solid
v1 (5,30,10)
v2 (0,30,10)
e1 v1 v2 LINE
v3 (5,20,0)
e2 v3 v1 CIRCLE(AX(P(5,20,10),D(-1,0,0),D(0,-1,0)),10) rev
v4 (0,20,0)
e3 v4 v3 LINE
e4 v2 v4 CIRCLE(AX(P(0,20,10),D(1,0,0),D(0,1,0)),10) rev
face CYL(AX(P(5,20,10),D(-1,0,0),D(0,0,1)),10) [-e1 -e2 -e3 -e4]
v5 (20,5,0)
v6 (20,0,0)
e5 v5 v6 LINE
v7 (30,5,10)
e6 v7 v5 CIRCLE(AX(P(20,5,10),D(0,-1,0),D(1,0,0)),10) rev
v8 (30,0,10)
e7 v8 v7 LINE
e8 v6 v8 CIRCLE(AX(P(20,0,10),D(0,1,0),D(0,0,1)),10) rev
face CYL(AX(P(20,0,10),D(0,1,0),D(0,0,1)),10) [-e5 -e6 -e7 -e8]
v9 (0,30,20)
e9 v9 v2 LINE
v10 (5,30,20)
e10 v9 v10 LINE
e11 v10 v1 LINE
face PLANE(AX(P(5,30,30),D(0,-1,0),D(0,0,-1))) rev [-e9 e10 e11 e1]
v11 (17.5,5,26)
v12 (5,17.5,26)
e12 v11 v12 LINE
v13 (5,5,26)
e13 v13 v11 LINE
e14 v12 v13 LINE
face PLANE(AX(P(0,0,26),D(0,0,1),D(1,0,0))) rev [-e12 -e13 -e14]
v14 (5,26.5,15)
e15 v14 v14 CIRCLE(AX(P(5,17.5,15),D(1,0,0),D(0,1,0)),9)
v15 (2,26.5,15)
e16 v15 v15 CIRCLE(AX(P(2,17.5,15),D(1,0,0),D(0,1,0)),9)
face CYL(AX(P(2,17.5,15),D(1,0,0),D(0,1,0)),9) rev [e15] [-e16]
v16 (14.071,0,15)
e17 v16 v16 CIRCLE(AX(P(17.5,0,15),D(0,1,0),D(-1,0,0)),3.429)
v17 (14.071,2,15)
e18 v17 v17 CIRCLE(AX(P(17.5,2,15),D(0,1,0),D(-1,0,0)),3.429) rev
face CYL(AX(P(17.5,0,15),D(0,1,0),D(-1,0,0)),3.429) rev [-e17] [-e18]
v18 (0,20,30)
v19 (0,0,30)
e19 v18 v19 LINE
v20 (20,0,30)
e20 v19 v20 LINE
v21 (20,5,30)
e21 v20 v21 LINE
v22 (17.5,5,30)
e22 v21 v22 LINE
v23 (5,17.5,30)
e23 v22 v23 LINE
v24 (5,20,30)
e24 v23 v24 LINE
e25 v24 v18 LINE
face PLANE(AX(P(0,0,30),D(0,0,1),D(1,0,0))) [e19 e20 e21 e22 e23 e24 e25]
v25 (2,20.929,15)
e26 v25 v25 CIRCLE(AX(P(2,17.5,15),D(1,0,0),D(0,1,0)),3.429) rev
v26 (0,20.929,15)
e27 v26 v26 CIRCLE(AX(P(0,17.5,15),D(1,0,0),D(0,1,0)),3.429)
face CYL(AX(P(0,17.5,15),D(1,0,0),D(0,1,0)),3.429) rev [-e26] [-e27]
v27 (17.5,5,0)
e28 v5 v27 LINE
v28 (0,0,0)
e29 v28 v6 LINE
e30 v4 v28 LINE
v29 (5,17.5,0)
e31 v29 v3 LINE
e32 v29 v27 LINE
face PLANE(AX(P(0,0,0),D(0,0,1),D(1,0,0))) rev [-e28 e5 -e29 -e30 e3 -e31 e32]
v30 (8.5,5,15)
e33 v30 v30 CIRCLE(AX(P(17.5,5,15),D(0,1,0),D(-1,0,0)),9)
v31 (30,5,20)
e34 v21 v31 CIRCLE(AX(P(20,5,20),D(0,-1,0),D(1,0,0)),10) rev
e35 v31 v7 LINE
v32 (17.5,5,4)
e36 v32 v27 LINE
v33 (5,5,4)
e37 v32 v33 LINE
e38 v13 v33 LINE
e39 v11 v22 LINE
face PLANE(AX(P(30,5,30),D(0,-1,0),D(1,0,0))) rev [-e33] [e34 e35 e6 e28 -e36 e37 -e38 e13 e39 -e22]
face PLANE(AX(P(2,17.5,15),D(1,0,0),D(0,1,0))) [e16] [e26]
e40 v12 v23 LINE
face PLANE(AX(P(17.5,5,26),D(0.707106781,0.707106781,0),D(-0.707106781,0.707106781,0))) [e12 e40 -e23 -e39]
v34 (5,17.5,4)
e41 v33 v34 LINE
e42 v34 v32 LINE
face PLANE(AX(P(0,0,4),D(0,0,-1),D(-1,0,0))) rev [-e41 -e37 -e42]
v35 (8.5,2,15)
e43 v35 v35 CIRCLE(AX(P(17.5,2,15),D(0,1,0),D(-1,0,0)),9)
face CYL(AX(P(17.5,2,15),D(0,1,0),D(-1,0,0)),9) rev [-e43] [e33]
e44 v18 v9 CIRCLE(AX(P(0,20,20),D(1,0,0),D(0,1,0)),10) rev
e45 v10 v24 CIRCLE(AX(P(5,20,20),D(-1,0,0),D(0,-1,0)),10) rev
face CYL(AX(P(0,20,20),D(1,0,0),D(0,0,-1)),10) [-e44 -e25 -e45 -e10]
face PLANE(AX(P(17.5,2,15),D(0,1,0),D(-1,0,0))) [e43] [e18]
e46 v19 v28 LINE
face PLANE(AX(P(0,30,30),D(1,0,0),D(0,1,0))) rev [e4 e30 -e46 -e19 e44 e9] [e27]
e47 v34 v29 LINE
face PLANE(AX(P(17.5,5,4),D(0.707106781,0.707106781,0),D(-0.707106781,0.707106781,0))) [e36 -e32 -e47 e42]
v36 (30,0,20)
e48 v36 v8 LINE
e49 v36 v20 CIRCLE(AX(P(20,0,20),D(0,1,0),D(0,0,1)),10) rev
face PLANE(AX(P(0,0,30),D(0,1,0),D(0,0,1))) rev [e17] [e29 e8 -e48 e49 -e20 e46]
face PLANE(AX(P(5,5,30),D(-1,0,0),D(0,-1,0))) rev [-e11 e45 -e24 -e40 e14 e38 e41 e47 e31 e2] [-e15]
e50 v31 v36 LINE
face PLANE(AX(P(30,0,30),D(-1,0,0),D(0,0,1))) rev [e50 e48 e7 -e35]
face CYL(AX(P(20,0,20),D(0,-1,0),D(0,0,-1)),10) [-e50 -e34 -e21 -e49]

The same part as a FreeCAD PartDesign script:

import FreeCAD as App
import Part
import Sketcher
Q = App.Units.Quantity


def edges_at(feature, points):
    """Names of the edges that pass closest to the given points."""
    edges = feature.Shape.Edges
    near = lambda p: min(range(len(edges)), key=lambda i: edges[i].distToShape(Part.Vertex(*p))[0])
    return sorted({f"Edge{near(p) + 1}" for p in points})


def add_polygon(sketch, points):
    """Adds a closed chain of lines whose ends are joined by coincident constraints."""
    first, n = sketch.GeometryCount, len(points)
    for a, b in zip(points, points[1:] + points[:1]):
        sketch.addGeometry(Part.LineSegment(App.Vector(*a, 0), App.Vector(*b, 0)), False)
    for i in range(n):
        sketch.addConstraint(Sketcher.Constraint("Coincident", first + i, 2, first + (i + 1) % n, 1))

doc = App.newDocument("Part")
params = doc.addObject("Spreadsheet::Sheet", "Params")
for row, (alias, value) in enumerate([
    ("sketch1_width", "30 mm"),
    ("sketch1_width2", "25 mm"),
    ("pad1_length", "30 mm"),
    ("sketch4_diameter", "18 mm"),
    ("pocket3_length", "3 mm"),
    ("sketch5_diameter", "18 mm"),
    ("pocket4_length", "3 mm"),
    ("sketch6_width", "12.5 mm"),
    ("pad2_length", "4 mm"),
    ("sketch7_width", "12.5 mm"),
    ("pad3_length", "4 mm"),
    ("fillet_radius", "10 mm"),
], start=1):
    params.set(f"A{row}", alias)
    params.set(f"B{row}", "=" + value)
    params.setAlias(f"B{row}", alias)

body = doc.addObject("PartDesign::Body", "Body")

# Sketch on XY plane
sketch1 = doc.addObject("Sketcher::SketchObject", "Sketch")
body.addObject(sketch1)
sketch1.AttachmentSupport = (doc.XY_Plane, [""])
sketch1.MapMode = "FlatFace"
add_polygon(sketch1, [(0, 30), (0, 0), (30, 0), (30, 5), (5, 5), (5, 30)])  # lines 0-5
sketch1.addConstraint([
    Sketcher.Constraint("Vertical", 0),
    Sketcher.Constraint("Horizontal", 1),
    Sketcher.Constraint("Vertical", 2),
    Sketcher.Constraint("Horizontal", 3),
    Sketcher.Constraint("Vertical", 4),
    Sketcher.Constraint("Horizontal", 5),
    Sketcher.Constraint("Coincident", 0, 2, -1, 1),
    Sketcher.Constraint("Equal", 1, 0),
    Sketcher.Constraint("Equal", 5, 2),
    Sketcher.Constraint("DistanceX", 1, 1, 1, 2, Q("30 mm")),
    Sketcher.Constraint("DistanceX", 3, 2, 3, 1, Q("25 mm")),
])
sketch1.setExpression("Constraints[15]", "Params.sketch1_width")
sketch1.setExpression("Constraints[16]", "Params.sketch1_width2")
pad1 = doc.addObject("PartDesign::Pad", "Pad")
body.addObject(pad1)
pad1.Profile = sketch1
pad1.setExpression("Length", "Params.pad1_length")

# Sketch on YZ plane
sketch2 = doc.addObject("Sketcher::SketchObject", "Sketch001")
body.addObject(sketch2)
sketch2.AttachmentSupport = (doc.YZ_Plane, [""])
sketch2.MapMode = "FlatFace"
sketch2.AttachmentOffset = App.Placement(App.Vector(0, 0, 5), App.Rotation())
sketch2.addGeometry(Part.Circle(App.Vector(17.5, 15, 0), App.Vector(0, 0, 1), 3.429), False)
sketch2.addConstraint([
    Sketcher.Constraint("Diameter", 0, Q("6.858 mm")),
    Sketcher.Constraint("DistanceY", -1, 1, 0, 3, Q("15 mm")),
    Sketcher.Constraint("DistanceX", -1, 1, 0, 3, Q("17.5 mm")),
])
pocket1 = doc.addObject("PartDesign::Pocket", "Pocket")
body.addObject(pocket1)
pocket1.Profile = sketch2
pocket1.Type = "ThroughAll"

# Sketch on XZ plane
sketch3 = doc.addObject("Sketcher::SketchObject", "Sketch002")
body.addObject(sketch3)
sketch3.AttachmentSupport = (doc.XZ_Plane, [""])
sketch3.MapMode = "FlatFace"
sketch3.AttachmentOffset = App.Placement(App.Vector(0, 0, -5), App.Rotation())
sketch3.addGeometry(Part.Circle(App.Vector(17.5, 15, 0), App.Vector(0, 0, 1), 3.429), False)
sketch3.addConstraint([
    Sketcher.Constraint("Diameter", 0, Q("6.858 mm")),
    Sketcher.Constraint("DistanceY", -1, 1, 0, 3, Q("15 mm")),
    Sketcher.Constraint("DistanceX", -1, 1, 0, 3, Q("17.5 mm")),
])
pocket2 = doc.addObject("PartDesign::Pocket", "Pocket001")
body.addObject(pocket2)
pocket2.Profile = sketch3
pocket2.Type = "ThroughAll"
pocket2.Midplane = True

# Sketch on XZ plane
sketch4 = doc.addObject("Sketcher::SketchObject", "Sketch003")
body.addObject(sketch4)
sketch4.AttachmentSupport = (doc.XZ_Plane, [""])
sketch4.MapMode = "FlatFace"
sketch4.AttachmentOffset = App.Placement(App.Vector(0, 0, -5), App.Rotation())
sketch4.addGeometry(Part.Circle(App.Vector(17.5, 15, 0), App.Vector(0, 0, 1), 9), False)
sketch4.addConstraint([
    Sketcher.Constraint("Diameter", 0, Q("18 mm")),
    Sketcher.Constraint("DistanceY", -1, 1, 0, 3, Q("15 mm")),
    Sketcher.Constraint("DistanceX", -1, 1, 0, 3, Q("17.5 mm")),
])
sketch4.setExpression("Constraints[0]", "Params.sketch4_diameter")
pocket3 = doc.addObject("PartDesign::Pocket", "Pocket002")
body.addObject(pocket3)
pocket3.Profile = sketch4
pocket3.setExpression("Length", "Params.pocket3_length")
pocket3.Reversed = True

# Sketch on YZ plane
sketch5 = doc.addObject("Sketcher::SketchObject", "Sketch004")
body.addObject(sketch5)
sketch5.AttachmentSupport = (doc.YZ_Plane, [""])
sketch5.MapMode = "FlatFace"
sketch5.AttachmentOffset = App.Placement(App.Vector(0, 0, 5), App.Rotation())
sketch5.addGeometry(Part.Circle(App.Vector(17.5, 15, 0), App.Vector(0, 0, 1), 9), False)
sketch5.addConstraint([
    Sketcher.Constraint("Diameter", 0, Q("18 mm")),
    Sketcher.Constraint("DistanceY", -1, 1, 0, 3, Q("15 mm")),
    Sketcher.Constraint("DistanceX", -1, 1, 0, 3, Q("17.5 mm")),
])
sketch5.setExpression("Constraints[0]", "Params.sketch5_diameter")
pocket4 = doc.addObject("PartDesign::Pocket", "Pocket003")
body.addObject(pocket4)
pocket4.Profile = sketch5
pocket4.setExpression("Length", "Params.pocket4_length")

# Sketch on XY plane
sketch6 = doc.addObject("Sketcher::SketchObject", "Sketch005")
body.addObject(sketch6)
sketch6.AttachmentSupport = (doc.XY_Plane, [""])
sketch6.MapMode = "FlatFace"
add_polygon(sketch6, [(5, 17.5), (17.5, 5), (5, 5)])  # lines 0-2
sketch6.addConstraint([
    Sketcher.Constraint("Horizontal", 1),
    Sketcher.Constraint("Vertical", 2),
    Sketcher.Constraint("Equal", 1, 2),
    Sketcher.Constraint("DistanceX", 1, 2, 1, 1, Q("12.5 mm")),
    Sketcher.Constraint("DistanceY", -1, 1, 0, 2, Q("5 mm")),
    Sketcher.Constraint("DistanceX", -1, 1, 1, 2, Q("5 mm")),
])
sketch6.setExpression("Constraints[6]", "Params.sketch6_width")
pad2 = doc.addObject("PartDesign::Pad", "Pad001")
body.addObject(pad2)
pad2.Profile = sketch6
pad2.setExpression("Length", "Params.pad2_length")

# Sketch on XY plane
sketch7 = doc.addObject("Sketcher::SketchObject", "Sketch006")
body.addObject(sketch7)
sketch7.AttachmentSupport = (doc.XY_Plane, [""])
sketch7.MapMode = "FlatFace"
sketch7.AttachmentOffset = App.Placement(App.Vector(0, 0, 30), App.Rotation())
add_polygon(sketch7, [(5, 5), (17.5, 5), (5, 17.5)])  # lines 0-2
sketch7.addConstraint([
    Sketcher.Constraint("Horizontal", 0),
    Sketcher.Constraint("Vertical", 2),
    Sketcher.Constraint("Equal", 0, 2),
    Sketcher.Constraint("DistanceX", 0, 1, 0, 2, Q("12.5 mm")),
    Sketcher.Constraint("DistanceY", -1, 1, 0, 2, Q("5 mm")),
    Sketcher.Constraint("DistanceX", -1, 1, 1, 2, Q("5 mm")),
])
sketch7.setExpression("Constraints[6]", "Params.sketch7_width")
pad3 = doc.addObject("PartDesign::Pad", "Pad002")
body.addObject(pad3)
pad3.Profile = sketch7
pad3.setExpression("Length", "Params.pad3_length")
pad3.Reversed = True
doc.recompute()

fillet = doc.addObject("PartDesign::Fillet", "Fillet")
body.addObject(fillet)
fillet.Base = (pad3, edges_at(pad3, [
    (30, 2.5, 30),
    (2.5, 30, 30),
    (30, 2.5, 0),
    (2.5, 30, 0),
]))
fillet.setExpression("Radius", "Params.fillet_radius")

doc.recompute()
